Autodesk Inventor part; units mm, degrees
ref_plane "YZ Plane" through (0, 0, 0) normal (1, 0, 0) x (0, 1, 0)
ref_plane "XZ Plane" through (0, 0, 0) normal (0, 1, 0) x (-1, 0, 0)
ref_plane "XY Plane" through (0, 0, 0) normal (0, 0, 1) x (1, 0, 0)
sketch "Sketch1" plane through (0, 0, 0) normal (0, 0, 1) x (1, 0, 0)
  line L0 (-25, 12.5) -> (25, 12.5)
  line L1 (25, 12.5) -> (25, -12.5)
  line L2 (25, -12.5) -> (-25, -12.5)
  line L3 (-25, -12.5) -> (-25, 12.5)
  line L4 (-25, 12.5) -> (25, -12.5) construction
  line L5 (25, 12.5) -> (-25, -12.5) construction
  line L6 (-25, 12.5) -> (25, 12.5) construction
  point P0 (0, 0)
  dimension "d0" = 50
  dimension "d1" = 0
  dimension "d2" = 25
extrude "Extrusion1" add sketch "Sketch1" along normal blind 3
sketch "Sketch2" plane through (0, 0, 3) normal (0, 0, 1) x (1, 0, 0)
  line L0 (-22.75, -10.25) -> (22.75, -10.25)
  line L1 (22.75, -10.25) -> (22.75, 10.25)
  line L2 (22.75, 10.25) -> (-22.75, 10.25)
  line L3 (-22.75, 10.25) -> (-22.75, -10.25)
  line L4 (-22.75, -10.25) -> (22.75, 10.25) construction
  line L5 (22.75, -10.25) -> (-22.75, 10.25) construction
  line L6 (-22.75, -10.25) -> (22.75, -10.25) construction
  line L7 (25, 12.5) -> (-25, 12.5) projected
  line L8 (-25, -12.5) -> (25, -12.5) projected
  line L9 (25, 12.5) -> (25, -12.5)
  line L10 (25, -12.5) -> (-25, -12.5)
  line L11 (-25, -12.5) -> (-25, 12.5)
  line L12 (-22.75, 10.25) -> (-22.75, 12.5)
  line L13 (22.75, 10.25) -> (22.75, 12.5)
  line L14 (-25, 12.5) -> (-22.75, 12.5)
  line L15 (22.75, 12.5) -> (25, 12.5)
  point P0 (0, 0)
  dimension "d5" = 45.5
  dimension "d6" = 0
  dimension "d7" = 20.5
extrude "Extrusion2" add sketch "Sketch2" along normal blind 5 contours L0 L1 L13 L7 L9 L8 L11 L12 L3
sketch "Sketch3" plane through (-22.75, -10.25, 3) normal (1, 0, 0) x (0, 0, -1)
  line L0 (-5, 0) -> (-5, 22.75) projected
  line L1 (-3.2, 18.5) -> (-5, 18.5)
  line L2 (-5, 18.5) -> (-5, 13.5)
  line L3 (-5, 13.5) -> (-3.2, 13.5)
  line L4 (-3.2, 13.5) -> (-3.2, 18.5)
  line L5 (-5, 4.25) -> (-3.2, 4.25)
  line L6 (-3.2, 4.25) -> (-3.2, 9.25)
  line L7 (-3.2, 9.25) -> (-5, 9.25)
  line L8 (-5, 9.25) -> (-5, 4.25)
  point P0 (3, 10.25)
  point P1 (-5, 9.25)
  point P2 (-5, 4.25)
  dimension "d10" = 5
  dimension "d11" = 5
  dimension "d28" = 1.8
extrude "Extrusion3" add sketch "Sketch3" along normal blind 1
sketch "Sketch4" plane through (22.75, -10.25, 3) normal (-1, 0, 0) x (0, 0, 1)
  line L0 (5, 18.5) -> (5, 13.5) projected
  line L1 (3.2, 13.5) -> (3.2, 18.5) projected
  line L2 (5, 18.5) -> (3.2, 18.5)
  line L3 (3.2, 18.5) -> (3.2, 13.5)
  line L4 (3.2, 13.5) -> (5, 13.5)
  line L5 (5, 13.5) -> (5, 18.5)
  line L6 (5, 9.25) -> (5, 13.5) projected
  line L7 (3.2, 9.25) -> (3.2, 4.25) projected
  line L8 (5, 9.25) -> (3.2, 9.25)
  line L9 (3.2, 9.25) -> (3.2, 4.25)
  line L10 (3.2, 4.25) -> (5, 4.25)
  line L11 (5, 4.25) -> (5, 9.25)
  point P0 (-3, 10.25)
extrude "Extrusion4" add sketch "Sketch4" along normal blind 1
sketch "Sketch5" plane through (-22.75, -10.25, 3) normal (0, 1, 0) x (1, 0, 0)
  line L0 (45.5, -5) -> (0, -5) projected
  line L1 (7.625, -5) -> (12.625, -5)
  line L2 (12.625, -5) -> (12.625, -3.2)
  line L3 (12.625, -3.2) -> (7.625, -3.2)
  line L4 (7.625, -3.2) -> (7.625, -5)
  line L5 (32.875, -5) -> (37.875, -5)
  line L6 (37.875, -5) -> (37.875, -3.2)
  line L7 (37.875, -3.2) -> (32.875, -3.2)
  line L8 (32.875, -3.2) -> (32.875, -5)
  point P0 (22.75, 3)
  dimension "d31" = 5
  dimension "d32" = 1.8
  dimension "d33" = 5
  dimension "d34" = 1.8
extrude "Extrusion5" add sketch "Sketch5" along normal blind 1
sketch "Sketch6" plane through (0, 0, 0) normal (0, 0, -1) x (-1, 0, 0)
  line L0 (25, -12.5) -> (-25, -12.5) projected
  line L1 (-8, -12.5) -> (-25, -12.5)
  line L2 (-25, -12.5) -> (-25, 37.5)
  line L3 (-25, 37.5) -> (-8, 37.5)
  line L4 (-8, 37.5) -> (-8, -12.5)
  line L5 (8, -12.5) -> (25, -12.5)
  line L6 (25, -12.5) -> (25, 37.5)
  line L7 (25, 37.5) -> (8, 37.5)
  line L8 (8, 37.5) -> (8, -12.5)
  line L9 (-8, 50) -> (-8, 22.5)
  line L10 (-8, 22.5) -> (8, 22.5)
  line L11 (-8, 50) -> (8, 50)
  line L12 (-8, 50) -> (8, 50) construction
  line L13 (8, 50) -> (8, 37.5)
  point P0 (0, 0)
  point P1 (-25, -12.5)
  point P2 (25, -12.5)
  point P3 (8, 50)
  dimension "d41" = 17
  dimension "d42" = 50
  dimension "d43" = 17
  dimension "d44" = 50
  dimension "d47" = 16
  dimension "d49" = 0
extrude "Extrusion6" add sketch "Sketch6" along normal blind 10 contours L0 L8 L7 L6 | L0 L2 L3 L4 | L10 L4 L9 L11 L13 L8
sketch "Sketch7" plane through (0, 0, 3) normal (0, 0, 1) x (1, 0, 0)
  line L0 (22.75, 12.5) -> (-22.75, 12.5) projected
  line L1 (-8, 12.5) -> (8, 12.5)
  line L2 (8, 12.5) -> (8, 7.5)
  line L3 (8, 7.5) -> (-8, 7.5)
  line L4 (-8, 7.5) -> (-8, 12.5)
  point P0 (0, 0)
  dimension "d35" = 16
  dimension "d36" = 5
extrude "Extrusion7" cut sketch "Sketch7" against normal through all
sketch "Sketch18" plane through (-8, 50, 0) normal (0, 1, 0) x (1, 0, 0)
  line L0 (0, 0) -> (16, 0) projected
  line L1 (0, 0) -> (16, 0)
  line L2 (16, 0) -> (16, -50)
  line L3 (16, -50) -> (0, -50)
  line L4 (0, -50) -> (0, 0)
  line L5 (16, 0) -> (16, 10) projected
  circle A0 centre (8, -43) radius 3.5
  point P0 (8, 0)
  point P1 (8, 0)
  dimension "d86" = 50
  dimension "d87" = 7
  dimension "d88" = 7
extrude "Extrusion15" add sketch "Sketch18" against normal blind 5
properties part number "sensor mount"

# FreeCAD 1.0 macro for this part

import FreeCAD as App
import Part
import Sketcher
from FreeCAD import Vector


def add_polygon(sketch, points):
    """Adds a closed chain of lines whose ends are joined by coincident constraints."""
    first, n = sketch.GeometryCount, len(points)
    for a, b in zip(points, points[1:] + points[:1]):
        sketch.addGeometry(Part.LineSegment(App.Vector(*a, 0), App.Vector(*b, 0)), False)
    for i in range(n):
        sketch.addConstraint(Sketcher.Constraint("Coincident", first + i, 2, first + (i + 1) % n, 1))

doc = App.newDocument("Part")
body = doc.addObject("PartDesign::Body", "Body")

sketch1 = doc.addObject("Sketcher::SketchObject", "Sketch")
body.addObject(sketch1)
sketch1.AttachmentSupport = (doc.XY_Plane, [""])
sketch1.MapMode = "FlatFace"
add_polygon(sketch1, [(25, 12.5), (-25, 12.5), (-25, -12.5), (25, -12.5)])
sketch1.addConstraint(Sketcher.Constraint("Horizontal", 0))
sketch1.addConstraint(Sketcher.Constraint("Vertical", 1))
sketch1.addConstraint(Sketcher.Constraint("Horizontal", 2))
sketch1.addConstraint(Sketcher.Constraint("Vertical", 3))
sketch1.addConstraint(Sketcher.Constraint("Symmetric", 0, 2, 2, 2, -1, 1))
sketch1.addConstraint(Sketcher.Constraint("DistanceX", 0, 2, 0, 1, 50.0))
sketch1.addConstraint(Sketcher.Constraint("DistanceY", 1, 2, 1, 1, 25.0))
pad1 = doc.addObject("PartDesign::Pad", "Pad")
body.addObject(pad1)
pad1.Profile = sketch1
pad1.Length = 3

sketch2 = doc.addObject("Sketcher::SketchObject", "Sketch001")
body.addObject(sketch2)
sketch2.AttachmentSupport = (doc.XY_Plane, [""])
sketch2.MapMode = "FlatFace"
sketch2.AttachmentOffset = App.Placement(Vector(0, 0, 3), App.Rotation())
add_polygon(sketch2, [(22.75, -10.25), (-22.75, -10.25), (-22.75, 12.5), (-25, 12.5), (-25, -12.5), (25, -12.5), (25, 12.5), (22.75, 12.5)])
sketch2.addConstraint(Sketcher.Constraint("Horizontal", 0))
sketch2.addConstraint(Sketcher.Constraint("Vertical", 1))
sketch2.addConstraint(Sketcher.Constraint("Horizontal", 2))
sketch2.addConstraint(Sketcher.Constraint("Vertical", 3))
sketch2.addConstraint(Sketcher.Constraint("Horizontal", 4))
sketch2.addConstraint(Sketcher.Constraint("Vertical", 5))
sketch2.addConstraint(Sketcher.Constraint("Horizontal", 6))
sketch2.addConstraint(Sketcher.Constraint("Vertical", 7))
sketch2.addConstraint(Sketcher.Constraint("Symmetric", 2, 2, 4, 2, -1, 1))
sketch2.addConstraint(Sketcher.Constraint("Symmetric", 1, 2, 6, 2, -2))
sketch2.addConstraint(Sketcher.Constraint("DistanceX", 0, 2, 0, 1, 45.5))
sketch2.addConstraint(Sketcher.Constraint("DistanceX", 4, 1, 4, 2, 50.0))
sketch2.addConstraint(Sketcher.Constraint("DistanceY", 3, 2, 3, 1, 25.0))
sketch2.addConstraint(Sketcher.Constraint("DistanceY", 1, 1, 1, 2, 22.75))
pad2 = doc.addObject("PartDesign::Pad", "Pad001")
body.addObject(pad2)
pad2.Profile = sketch2
pad2.Length = 5

sketch3 = doc.addObject("Sketcher::SketchObject", "Sketch002")
body.addObject(sketch3)
sketch3.AttachmentSupport = (doc.YZ_Plane, [""])
sketch3.MapMode = "FlatFace"
sketch3.AttachmentOffset = App.Placement(Vector(0, 0, -22.75), App.Rotation())
add_polygon(sketch3, [(8.25, 8), (3.25, 8), (3.25, 6.2), (8.25, 6.2)])
add_polygon(sketch3, [(-1, 8), (-6, 8), (-6, 6.2), (-1, 6.2)])
sketch3.addConstraint(Sketcher.Constraint("Horizontal", 0))
sketch3.addConstraint(Sketcher.Constraint("Vertical", 1))
sketch3.addConstraint(Sketcher.Constraint("Horizontal", 2))
sketch3.addConstraint(Sketcher.Constraint("Vertical", 3))
sketch3.addConstraint(Sketcher.Constraint("Horizontal", 4))
sketch3.addConstraint(Sketcher.Constraint("Vertical", 5))
sketch3.addConstraint(Sketcher.Constraint("Horizontal", 6))
sketch3.addConstraint(Sketcher.Constraint("Vertical", 7))
sketch3.addConstraint(Sketcher.Constraint("Horizontal", 3, 2, 4, 2))
sketch3.addConstraint(Sketcher.Constraint("Horizontal", 2, 2, 5, 2))
sketch3.addConstraint(Sketcher.Constraint("Equal", 2, 4))
sketch3.addConstraint(Sketcher.Constraint("DistanceX", 0, 2, 0, 1, 5.0))
sketch3.addConstraint(Sketcher.Constraint("DistanceY", 1, 2, 1, 1, 1.8))
sketch3.addConstraint(Sketcher.Constraint("DistanceY", -1, 1, 0, 2, 8.0))
sketch3.addConstraint(Sketcher.Constraint("DistanceX", 4, 2, -1, 1, 6.0))
sketch3.addConstraint(Sketcher.Constraint("DistanceX", -1, 1, 0, 2, 3.25))
pad3 = doc.addObject("PartDesign::Pad", "Pad002")
body.addObject(pad3)
pad3.Profile = sketch3
pad3.Length = 1

sketch4 = doc.addObject("Sketcher::SketchObject", "Sketch003")
body.addObject(sketch4)
sketch4.AttachmentSupport = (doc.YZ_Plane, [""])
sketch4.MapMode = "FlatFace"
sketch4.AttachmentOffset = App.Placement(Vector(0, 0, 22.75), App.Rotation())
add_polygon(sketch4, [(-6, 8), (-1, 8), (-1, 6.2), (-6, 6.2)])
add_polygon(sketch4, [(3.25, 8), (8.25, 8), (8.25, 6.2), (3.25, 6.2)])
sketch4.addConstraint(Sketcher.Constraint("Horizontal", 0))
sketch4.addConstraint(Sketcher.Constraint("Vertical", 1))
sketch4.addConstraint(Sketcher.Constraint("Horizontal", 2))
sketch4.addConstraint(Sketcher.Constraint("Vertical", 3))
sketch4.addConstraint(Sketcher.Constraint("Horizontal", 4))
sketch4.addConstraint(Sketcher.Constraint("Vertical", 5))
sketch4.addConstraint(Sketcher.Constraint("Horizontal", 6))
sketch4.addConstraint(Sketcher.Constraint("Vertical", 7))
sketch4.addConstraint(Sketcher.Constraint("Horizontal", 3, 2, 4, 2))
sketch4.addConstraint(Sketcher.Constraint("Horizontal", 2, 2, 5, 2))
sketch4.addConstraint(Sketcher.Constraint("Equal", 2, 4))
sketch4.addConstraint(Sketcher.Constraint("DistanceX", 0, 1, 0, 2, 5.0))
sketch4.addConstraint(Sketcher.Constraint("DistanceY", 1, 2, 1, 1, 1.8))
sketch4.addConstraint(Sketcher.Constraint("DistanceX", 0, 2, -1, 1, 1.0))
sketch4.addConstraint(Sketcher.Constraint("DistanceY", -1, 1, 0, 2, 8.0))
sketch4.addConstraint(Sketcher.Constraint("DistanceX", -1, 1, 4, 2, 8.25))
pad4 = doc.addObject("PartDesign::Pad", "Pad003")
body.addObject(pad4)
pad4.Profile = sketch4
pad4.Length = 1
pad4.Reversed = True

sketch5 = doc.addObject("Sketcher::SketchObject", "Sketch004")
body.addObject(sketch5)
sketch5.AttachmentSupport = (doc.XZ_Plane, [""])
sketch5.MapMode = "FlatFace"
sketch5.AttachmentOffset = App.Placement(Vector(0, 0, 10.25), App.Rotation())
add_polygon(sketch5, [(-15.125, 8), (-10.125, 8), (-10.125, 6.2), (-15.125, 6.2)])
add_polygon(sketch5, [(10.125, 8), (15.125, 8), (15.125, 6.2), (10.125, 6.2)])
sketch5.addConstraint(Sketcher.Constraint("Horizontal", 0))
sketch5.addConstraint(Sketcher.Constraint("Vertical", 1))
sketch5.addConstraint(Sketcher.Constraint("Horizontal", 2))
sketch5.addConstraint(Sketcher.Constraint("Vertical", 3))
sketch5.addConstraint(Sketcher.Constraint("Horizontal", 4))
sketch5.addConstraint(Sketcher.Constraint("Vertical", 5))
sketch5.addConstraint(Sketcher.Constraint("Horizontal", 6))
sketch5.addConstraint(Sketcher.Constraint("Vertical", 7))
sketch5.addConstraint(Sketcher.Constraint("Symmetric", 3, 2, 4, 2, -2))
sketch5.addConstraint(Sketcher.Constraint("Symmetric", 1, 2, 6, 2, -2))
sketch5.addConstraint(Sketcher.Constraint("DistanceX", 0, 1, 0, 2, 5.0))
sketch5.addConstraint(Sketcher.Constraint("DistanceY", 1, 2, 1, 1, 1.8))
sketch5.addConstraint(Sketcher.Constraint("DistanceY", -1, 1, 0, 2, 8.0))
sketch5.addConstraint(Sketcher.Constraint("DistanceX", 0, 2, 4, 2, 25.25))
pad5 = doc.addObject("PartDesign::Pad", "Pad004")
body.addObject(pad5)
pad5.Profile = sketch5
pad5.Length = 1
pad5.Reversed = True

sketch6 = doc.addObject("Sketcher::SketchObject", "Sketch005")
body.addObject(sketch6)
sketch6.AttachmentSupport = (doc.XY_Plane, [""])
sketch6.MapMode = "FlatFace"
add_polygon(sketch6, [(-8, -12.5), (-25, -12.5), (-25, 37.5), (-8, 37.5), (-8, 50), (8, 50), (8, 37.5), (25, 37.5), (25, -12.5), (8, -12.5), (8, 22.5), (-8, 22.5)])
sketch6.addConstraint(Sketcher.Constraint("Horizontal", 0))
sketch6.addConstraint(Sketcher.Constraint("Vertical", 1))
sketch6.addConstraint(Sketcher.Constraint("Horizontal", 2))
sketch6.addConstraint(Sketcher.Constraint("Vertical", 3))
sketch6.addConstraint(Sketcher.Constraint("Horizontal", 4))
sketch6.addConstraint(Sketcher.Constraint("Vertical", 5))
sketch6.addConstraint(Sketcher.Constraint("Horizontal", 6))
sketch6.addConstraint(Sketcher.Constraint("Vertical", 7))
sketch6.addConstraint(Sketcher.Constraint("Horizontal", 8))
sketch6.addConstraint(Sketcher.Constraint("Vertical", 9))
sketch6.addConstraint(Sketcher.Constraint("Horizontal", 10))
sketch6.addConstraint(Sketcher.Constraint("Vertical", 11))
sketch6.addConstraint(Sketcher.Constraint("Symmetric", 2, 2, 5, 2, -2))
sketch6.addConstraint(Sketcher.Constraint("Symmetric", 0, 2, 7, 2, -2))
sketch6.addConstraint(Sketcher.Constraint("Vertical", 5, 2, 8, 2))
sketch6.addConstraint(Sketcher.Constraint("Vertical", 3, 2, 10, 2))
sketch6.addConstraint(Sketcher.Constraint("DistanceX", 0, 2, 0, 1, 17.0))
sketch6.addConstraint(Sketcher.Constraint("DistanceX", 4, 1, 4, 2, 16.0))
sketch6.addConstraint(Sketcher.Constraint("DistanceY", 1, 1, 1, 2, 50.0))
sketch6.addConstraint(Sketcher.Constraint("DistanceY", -1, 1, 3, 2, 50.0))
sketch6.addConstraint(Sketcher.Constraint("DistanceY", 9, 1, 9, 2, 35.0))
sketch6.addConstraint(Sketcher.Constraint("DistanceY", 3, 1, 3, 2, 12.5))
pad6 = doc.addObject("PartDesign::Pad", "Pad005")
body.addObject(pad6)
pad6.Profile = sketch6
pad6.Length = 10
pad6.Reversed = True

sketch7 = doc.addObject("Sketcher::SketchObject", "Sketch006")
body.addObject(sketch7)
sketch7.AttachmentSupport = (doc.XY_Plane, [""])
sketch7.MapMode = "FlatFace"
sketch7.AttachmentOffset = App.Placement(Vector(0, 0, 3), App.Rotation())
add_polygon(sketch7, [(8, 7.5), (8, 12.5), (-8, 12.5), (-8, 7.5)])
sketch7.addConstraint(Sketcher.Constraint("Vertical", 0))
sketch7.addConstraint(Sketcher.Constraint("Horizontal", 1))
sketch7.addConstraint(Sketcher.Constraint("Vertical", 2))
sketch7.addConstraint(Sketcher.Constraint("Horizontal", 3))
sketch7.addConstraint(Sketcher.Constraint("DistanceX", 1, 2, 1, 1, 16.0))
sketch7.addConstraint(Sketcher.Constraint("DistanceY", 0, 1, 0, 2, 5.0))
sketch7.addConstraint(Sketcher.Constraint("DistanceX", -1, 1, 0, 2, 8.0))
sketch7.addConstraint(Sketcher.Constraint("DistanceY", -1, 1, 0, 2, 12.5))
pocket1 = doc.addObject("PartDesign::Pocket", "Pocket")
body.addObject(pocket1)
pocket1.Profile = sketch7
pocket1.Type = "ThroughAll"

sketch8 = doc.addObject("Sketcher::SketchObject", "Sketch007")
body.addObject(sketch8)
sketch8.AttachmentSupport = (doc.XZ_Plane, [""])
sketch8.MapMode = "FlatFace"
sketch8.AttachmentOffset = App.Placement(Vector(0, 0, -50), App.Rotation())
add_polygon(sketch8, [(8, 0), (-8, 0), (-8, 50), (8, 50)])
sketch8.addGeometry(Part.Circle(Vector(0, 43, 0), Vector(0, 0, 1), 3.5), False)
sketch8.addConstraint(Sketcher.Constraint("Horizontal", 0))
sketch8.addConstraint(Sketcher.Constraint("Vertical", 1))
sketch8.addConstraint(Sketcher.Constraint("Horizontal", 2))
sketch8.addConstraint(Sketcher.Constraint("Vertical", 3))
sketch8.addConstraint(Sketcher.Constraint("Symmetric", 0, 2, 3, 2, -1, 1))
sketch8.addConstraint(Sketcher.Constraint("PointOnObject", 4, 3, -2))
sketch8.addConstraint(Sketcher.Constraint("Diameter", 4, 7.0))
sketch8.addConstraint(Sketcher.Constraint("DistanceY", 1, 1, 1, 2, 50.0))
sketch8.addConstraint(Sketcher.Constraint("DistanceY", 4, 3, 1, 2, 7.0))
sketch8.addConstraint(Sketcher.Constraint("DistanceX", 0, 2, 0, 1, 16.0))
pad7 = doc.addObject("PartDesign::Pad", "Pad006")
body.addObject(pad7)
pad7.Profile = sketch8
pad7.Length = 5

doc.recompute()
